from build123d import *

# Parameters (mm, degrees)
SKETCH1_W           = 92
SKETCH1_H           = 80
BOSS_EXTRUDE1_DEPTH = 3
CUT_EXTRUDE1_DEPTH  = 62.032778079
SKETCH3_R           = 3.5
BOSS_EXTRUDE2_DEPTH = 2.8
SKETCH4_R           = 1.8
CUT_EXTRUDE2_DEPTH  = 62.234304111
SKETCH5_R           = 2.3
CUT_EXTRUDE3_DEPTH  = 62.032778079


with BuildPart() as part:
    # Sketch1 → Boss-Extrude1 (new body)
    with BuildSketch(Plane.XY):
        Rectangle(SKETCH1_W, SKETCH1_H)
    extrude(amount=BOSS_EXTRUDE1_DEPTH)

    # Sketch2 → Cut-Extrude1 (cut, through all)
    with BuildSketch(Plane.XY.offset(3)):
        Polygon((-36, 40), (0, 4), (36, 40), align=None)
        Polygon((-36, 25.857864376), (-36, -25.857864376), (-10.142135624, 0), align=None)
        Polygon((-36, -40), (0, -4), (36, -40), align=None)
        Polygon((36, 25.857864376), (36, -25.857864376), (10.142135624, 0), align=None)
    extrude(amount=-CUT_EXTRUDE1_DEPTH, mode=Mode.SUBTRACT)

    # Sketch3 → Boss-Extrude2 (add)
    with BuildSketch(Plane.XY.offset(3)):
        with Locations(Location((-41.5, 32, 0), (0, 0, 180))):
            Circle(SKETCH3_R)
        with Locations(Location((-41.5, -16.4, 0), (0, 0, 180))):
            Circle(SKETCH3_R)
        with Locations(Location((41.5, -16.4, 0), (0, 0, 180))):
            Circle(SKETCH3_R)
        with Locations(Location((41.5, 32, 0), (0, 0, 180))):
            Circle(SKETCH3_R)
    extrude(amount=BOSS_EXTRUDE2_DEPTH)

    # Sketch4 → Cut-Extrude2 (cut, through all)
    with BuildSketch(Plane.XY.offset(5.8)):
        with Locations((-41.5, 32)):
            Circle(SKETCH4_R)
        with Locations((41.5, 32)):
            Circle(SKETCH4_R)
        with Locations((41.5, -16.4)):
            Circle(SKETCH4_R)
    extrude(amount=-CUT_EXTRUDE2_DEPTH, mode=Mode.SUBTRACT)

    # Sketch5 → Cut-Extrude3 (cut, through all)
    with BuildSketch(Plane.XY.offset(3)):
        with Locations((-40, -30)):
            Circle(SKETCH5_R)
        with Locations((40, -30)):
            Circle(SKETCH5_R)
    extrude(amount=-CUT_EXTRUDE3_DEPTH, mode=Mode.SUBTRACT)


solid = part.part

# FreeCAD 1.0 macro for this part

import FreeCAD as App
import Part
import Sketcher
Q = App.Units.Quantity


def add_polygon(sketch, points):
    """Adds a closed chain of lines whose ends are joined by coincident constraints."""
    first, n = sketch.GeometryCount, len(points)
    for a, b in zip(points, points[1:] + points[:1]):
        sketch.addGeometry(Part.LineSegment(App.Vector(*a, 0), App.Vector(*b, 0)), False)
    for i in range(n):
        sketch.addConstraint(Sketcher.Constraint("Coincident", first + i, 2, first + (i + 1) % n, 1))

doc = App.newDocument("Part")
params = doc.addObject("Spreadsheet::Sheet", "Params")
for row, (alias, value) in enumerate([
    ("sketch1_width", "92 mm"),
    ("sketch1_height", "80 mm"),
    ("pad1_length", "3 mm"),
    ("sketch2_width", "72 mm"),
    ("sketch3_diameter", "7 mm"),
    ("pad2_length", "2.8 mm"),
    ("sketch4_diameter", "3.6 mm"),
    ("sketch5_diameter", "4.6 mm"),
], start=1):
    params.set(f"A{row}", alias)
    params.set(f"B{row}", "=" + value)
    params.setAlias(f"B{row}", alias)

body = doc.addObject("PartDesign::Body", "Body")

sketch1 = doc.addObject("Sketcher::SketchObject", "Sketch")
body.addObject(sketch1)
sketch1.AttachmentSupport = (doc.XY_Plane, [""])
sketch1.MapMode = "FlatFace"
add_polygon(sketch1, [(-46, 40), (-46, -40), (46, -40), (46, 40)])
sketch1.addConstraint(Sketcher.Constraint("Vertical", 0))
sketch1.addConstraint(Sketcher.Constraint("Horizontal", 1))
sketch1.addConstraint(Sketcher.Constraint("Vertical", 2))
sketch1.addConstraint(Sketcher.Constraint("Horizontal", 3))
sketch1.addConstraint(Sketcher.Constraint("Symmetric", 0, 2, 2, 2, -1, 1))
sketch1.addConstraint(Sketcher.Constraint("DistanceX", 1, 1, 1, 2, Q("92 mm")))
sketch1.addConstraint(Sketcher.Constraint("DistanceY", 0, 2, 0, 1, Q("80 mm")))
sketch1.setExpression("Constraints[9]", "Params.sketch1_width")
sketch1.setExpression("Constraints[10]", "Params.sketch1_height")
pad1 = doc.addObject("PartDesign::Pad", "Pad")
body.addObject(pad1)
pad1.Profile = sketch1
pad1.setExpression("Length", "Params.pad1_length")

sketch2 = doc.addObject("Sketcher::SketchObject", "Sketch001")
body.addObject(sketch2)
sketch2.AttachmentSupport = (doc.XY_Plane, [""])
sketch2.MapMode = "FlatFace"
sketch2.AttachmentOffset = App.Placement(App.Vector(0, 0, 3), App.Rotation())
add_polygon(sketch2, [(-36, 40), (0, 4), (36, 40)])
add_polygon(sketch2, [(-36, 26), (-36, -26), (-10, 0)])
add_polygon(sketch2, [(0, -4), (-36, -40), (36, -40)])
add_polygon(sketch2, [(36, -26), (36, 26), (10, 0)])
sketch2.addConstraint(Sketcher.Constraint("Horizontal", 2))
sketch2.addConstraint(Sketcher.Constraint("Vertical", 3))
sketch2.addConstraint(Sketcher.Constraint("Horizontal", 7))
sketch2.addConstraint(Sketcher.Constraint("Vertical", 9))
sketch2.addConstraint(Sketcher.Constraint("Symmetric", 1, 2, 6, 2, -1, 1))
sketch2.addConstraint(Sketcher.Constraint("Symmetric", 0, 2, 8, 2, -1, 1))
sketch2.addConstraint(Sketcher.Constraint("Symmetric", 3, 2, 9, 2, -1, 1))
sketch2.addConstraint(Sketcher.Constraint("Symmetric", 4, 2, 10, 2, -1, 1))
sketch2.addConstraint(Sketcher.Constraint("PointOnObject", 0, 2, -2))
sketch2.addConstraint(Sketcher.Constraint("PointOnObject", 4, 2, -1))
sketch2.addConstraint(Sketcher.Constraint("Perpendicular", 0, 1))
sketch2.addConstraint(Sketcher.Constraint("Parallel", 1, 4))
sketch2.addConstraint(Sketcher.Constraint("Perpendicular", 4, 5))
sketch2.addConstraint(Sketcher.Constraint("Perpendicular", 6, 8))
sketch2.addConstraint(Sketcher.Constraint("Perpendicular", 10, 11))
sketch2.addConstraint(Sketcher.Constraint("Horizontal", 5, 2, 9, 2))
sketch2.addConstraint(Sketcher.Constraint("Vertical", 2, 2, 3, 2))
sketch2.addConstraint(Sketcher.Constraint("DistanceX", 2, 2, 2, 1, Q("72 mm")))
sketch2.addConstraint(Sketcher.Constraint("DistanceY", -1, 1, 0, 2, Q("4 mm")))
sketch2.addConstraint(Sketcher.Constraint("DistanceY", 3, 2, 3, 1, Q("51.715729 mm")))
sketch2.setExpression("Constraints[29]", "Params.sketch2_width")
pocket1 = doc.addObject("PartDesign::Pocket", "Pocket")
body.addObject(pocket1)
pocket1.Profile = sketch2
pocket1.Type = "ThroughAll"

sketch3 = doc.addObject("Sketcher::SketchObject", "Sketch002")
body.addObject(sketch3)
sketch3.AttachmentSupport = (doc.XY_Plane, [""])
sketch3.MapMode = "FlatFace"
sketch3.AttachmentOffset = App.Placement(App.Vector(0, 0, 3), App.Rotation())
sketch3.addGeometry(Part.Circle(App.Vector(-41.5, 32, 0), App.Vector(0, 0, 1), 3.5), False)
sketch3.addGeometry(Part.Circle(App.Vector(-41.5, -16.4, 0), App.Vector(0, 0, 1), 3.5), False)
sketch3.addGeometry(Part.Circle(App.Vector(41.5, -16.4, 0), App.Vector(0, 0, 1), 3.5), False)
sketch3.addGeometry(Part.Circle(App.Vector(41.5, 32, 0), App.Vector(0, 0, 1), 3.5), False)
sketch3.addConstraint(Sketcher.Constraint("Equal", 0, 1))
sketch3.addConstraint(Sketcher.Constraint("Equal", 1, 2))
sketch3.addConstraint(Sketcher.Constraint("Equal", 2, 3))
sketch3.addConstraint(Sketcher.Constraint("Symmetric", 1, 3, 2, 3, -2))
sketch3.addConstraint(Sketcher.Constraint("Symmetric", 0, 3, 3, 3, -2))
sketch3.addConstraint(Sketcher.Constraint("Vertical", 0, 3, 1, 3))
sketch3.addConstraint(Sketcher.Constraint("Diameter", 0, Q("7 mm")))
sketch3.addConstraint(Sketcher.Constraint("DistanceY", -1, 1, 0, 3, Q("32 mm")))
sketch3.addConstraint(Sketcher.Constraint("DistanceX", 1, 3, 2, 3, Q("83 mm")))
sketch3.addConstraint(Sketcher.Constraint("DistanceY", 1, 3, -1, 1, Q("16.4 mm")))
sketch3.setExpression("Constraints[6]", "Params.sketch3_diameter")
pad2 = doc.addObject("PartDesign::Pad", "Pad001")
body.addObject(pad2)
pad2.Profile = sketch3
pad2.setExpression("Length", "Params.pad2_length")

sketch4 = doc.addObject("Sketcher::SketchObject", "Sketch003")
body.addObject(sketch4)
sketch4.AttachmentSupport = (doc.XY_Plane, [""])
sketch4.MapMode = "FlatFace"
sketch4.AttachmentOffset = App.Placement(App.Vector(0, 0, 5.8), App.Rotation())
sketch4.addGeometry(Part.Circle(App.Vector(-41.5, 32, 0), App.Vector(0, 0, 1), 1.8), False)
sketch4.addGeometry(Part.Circle(App.Vector(41.5, 32, 0), App.Vector(0, 0, 1), 1.8), False)
sketch4.addGeometry(Part.Circle(App.Vector(41.5, -16.4, 0), App.Vector(0, 0, 1), 1.8), False)
sketch4.addConstraint(Sketcher.Constraint("Equal", 0, 1))
sketch4.addConstraint(Sketcher.Constraint("Equal", 1, 2))
sketch4.addConstraint(Sketcher.Constraint("Symmetric", 0, 3, 1, 3, -2))
sketch4.addConstraint(Sketcher.Constraint("Vertical", 1, 3, 2, 3))
sketch4.addConstraint(Sketcher.Constraint("Diameter", 0, Q("3.6 mm")))
sketch4.addConstraint(Sketcher.Constraint("DistanceY", -1, 1, 0, 3, Q("32 mm")))
sketch4.addConstraint(Sketcher.Constraint("DistanceX", 0, 3, 1, 3, Q("83 mm")))
sketch4.addConstraint(Sketcher.Constraint("DistanceY", 2, 3, -1, 1, Q("16.4 mm")))
sketch4.setExpression("Constraints[4]", "Params.sketch4_diameter")
pocket2 = doc.addObject("PartDesign::Pocket", "Pocket001")
body.addObject(pocket2)
pocket2.Profile = sketch4
pocket2.Type = "ThroughAll"

sketch5 = doc.addObject("Sketcher::SketchObject", "Sketch004")
body.addObject(sketch5)
sketch5.AttachmentSupport = (doc.XY_Plane, [""])
sketch5.MapMode = "FlatFace"
sketch5.AttachmentOffset = App.Placement(App.Vector(0, 0, 3), App.Rotation())
sketch5.addGeometry(Part.Circle(App.Vector(-40, -30, 0), App.Vector(0, 0, 1), 2.3), False)
sketch5.addGeometry(Part.Circle(App.Vector(40, -30, 0), App.Vector(0, 0, 1), 2.3), False)
sketch5.addConstraint(Sketcher.Constraint("Equal", 0, 1))
sketch5.addConstraint(Sketcher.Constraint("Symmetric", 0, 3, 1, 3, -2))
sketch5.addConstraint(Sketcher.Constraint("Diameter", 0, Q("4.6 mm")))
sketch5.addConstraint(Sketcher.Constraint("DistanceX", 0, 3, -1, 1, Q("40 mm")))
sketch5.addConstraint(Sketcher.Constraint("DistanceY", 0, 3, -1, 1, Q("30 mm")))
sketch5.setExpression("Constraints[2]", "Params.sketch5_diameter")
pocket3 = doc.addObject("PartDesign::Pocket", "Pocket002")
body.addObject(pocket3)
pocket3.Profile = sketch5
pocket3.Type = "ThroughAll"

doc.recompute()
